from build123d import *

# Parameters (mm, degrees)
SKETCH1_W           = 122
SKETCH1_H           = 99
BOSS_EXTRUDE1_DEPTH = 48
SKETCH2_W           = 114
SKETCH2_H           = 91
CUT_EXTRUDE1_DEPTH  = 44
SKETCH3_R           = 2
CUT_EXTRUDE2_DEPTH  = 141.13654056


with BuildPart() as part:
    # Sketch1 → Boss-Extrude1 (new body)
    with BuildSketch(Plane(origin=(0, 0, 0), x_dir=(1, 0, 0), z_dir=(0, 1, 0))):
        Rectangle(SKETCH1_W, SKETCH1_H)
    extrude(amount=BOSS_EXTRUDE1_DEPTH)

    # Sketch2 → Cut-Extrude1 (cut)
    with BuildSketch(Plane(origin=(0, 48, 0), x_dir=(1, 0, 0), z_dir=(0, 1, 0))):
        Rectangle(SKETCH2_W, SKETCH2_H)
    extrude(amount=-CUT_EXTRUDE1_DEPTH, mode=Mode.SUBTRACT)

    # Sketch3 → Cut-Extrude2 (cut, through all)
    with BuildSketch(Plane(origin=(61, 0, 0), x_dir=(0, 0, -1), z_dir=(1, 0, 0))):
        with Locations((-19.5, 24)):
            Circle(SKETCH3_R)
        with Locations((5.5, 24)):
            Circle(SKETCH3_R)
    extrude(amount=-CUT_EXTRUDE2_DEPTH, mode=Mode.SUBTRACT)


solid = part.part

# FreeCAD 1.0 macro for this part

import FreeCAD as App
import Part
import Sketcher
Q = App.Units.Quantity


def add_polygon(sketch, points):
    """Adds a closed chain of lines whose ends are joined by coincident constraints."""
    first, n = sketch.GeometryCount, len(points)
    for a, b in zip(points, points[1:] + points[:1]):
        sketch.addGeometry(Part.LineSegment(App.Vector(*a, 0), App.Vector(*b, 0)), False)
    for i in range(n):
        sketch.addConstraint(Sketcher.Constraint("Coincident", first + i, 2, first + (i + 1) % n, 1))

doc = App.newDocument("Part")
body = doc.addObject("PartDesign::Body", "Body")

# Sketch on XZ plane
sketch1 = body.newObject("Sketcher::SketchObject", "Sketch")
sketch1.AttachmentSupport = (doc.getObject("XZ_Plane"), [""])
sketch1.MapMode = "FlatFace"
add_polygon(sketch1, [(-61, -50), (-61, 50), (61, 50), (61, -50)])  # lines 0-3
sketch1.addConstraint(Sketcher.Constraint("Vertical", 0))
sketch1.addConstraint(Sketcher.Constraint("Horizontal", 1))
sketch1.addConstraint(Sketcher.Constraint("Vertical", 2))
sketch1.addConstraint(Sketcher.Constraint("Horizontal", 3))
sketch1.addConstraint(Sketcher.Constraint("Symmetric", 0, 2, 2, 2, -1, 1))
sketch1.addConstraint(Sketcher.Constraint("DistanceX", 1, 1, 1, 2, Q("122 mm")))
sketch1.addConstraint(Sketcher.Constraint("DistanceY", 0, 1, 0, 2, Q("99 mm")))
pad1 = body.newObject("PartDesign::Pad", "Pad")
pad1.Profile = sketch1
pad1.Length = 48
pad1.Reversed = True

# Sketch on XZ plane
sketch2 = body.newObject("Sketcher::SketchObject", "Sketch001")
sketch2.AttachmentSupport = (doc.getObject("XZ_Plane"), [""])
sketch2.MapMode = "FlatFace"
sketch2.AttachmentOffset = App.Placement(App.Vector(0, 0, -48), App.Rotation())
add_polygon(sketch2, [(-57, -46), (-57, 46), (57, 46), (57, -46)])  # lines 0-3
sketch2.addConstraint(Sketcher.Constraint("Vertical", 0))
sketch2.addConstraint(Sketcher.Constraint("Horizontal", 1))
sketch2.addConstraint(Sketcher.Constraint("Vertical", 2))
sketch2.addConstraint(Sketcher.Constraint("Horizontal", 3))
sketch2.addConstraint(Sketcher.Constraint("Symmetric", 0, 2, 2, 2, -1, 1))
sketch2.addConstraint(Sketcher.Constraint("DistanceX", 1, 1, 1, 2, Q("114 mm")))
sketch2.addConstraint(Sketcher.Constraint("DistanceY", 0, 1, 0, 2, Q("91 mm")))
pocket1 = body.newObject("PartDesign::Pocket", "Pocket")
pocket1.Profile = sketch2
pocket1.Length = 44
pocket1.Reversed = True

# Sketch on YZ plane
sketch3 = body.newObject("Sketcher::SketchObject", "Sketch002")
sketch3.AttachmentSupport = (doc.getObject("YZ_Plane"), [""])
sketch3.MapMode = "FlatFace"
sketch3.AttachmentOffset = App.Placement(App.Vector(0, 0, 61), App.Rotation())
sketch3.addGeometry(Part.Circle(App.Vector(24, 19.5, 0), App.Vector(0, 0, 1), 2), False)
sketch3.addGeometry(Part.Circle(App.Vector(24, -5.5, 0), App.Vector(0, 0, 1), 2), False)
sketch3.addConstraint(Sketcher.Constraint("Equal", 0, 1))
sketch3.addConstraint(Sketcher.Constraint("Vertical", 0, 3, 1, 3))
sketch3.addConstraint(Sketcher.Constraint("Diameter", 0, Q("4 mm")))
sketch3.addConstraint(Sketcher.Constraint("DistanceX", -1, 1, 0, 3, Q("24 mm")))
sketch3.addConstraint(Sketcher.Constraint("DistanceY", 1, 3, 0, 3, Q("25 mm")))
sketch3.addConstraint(Sketcher.Constraint("DistanceY", -1, 1, 0, 3, Q("19.5 mm")))
pocket2 = body.newObject("PartDesign::Pocket", "Pocket001")
pocket2.Profile = sketch3
pocket2.Type = "ThroughAll"

doc.recompute()
